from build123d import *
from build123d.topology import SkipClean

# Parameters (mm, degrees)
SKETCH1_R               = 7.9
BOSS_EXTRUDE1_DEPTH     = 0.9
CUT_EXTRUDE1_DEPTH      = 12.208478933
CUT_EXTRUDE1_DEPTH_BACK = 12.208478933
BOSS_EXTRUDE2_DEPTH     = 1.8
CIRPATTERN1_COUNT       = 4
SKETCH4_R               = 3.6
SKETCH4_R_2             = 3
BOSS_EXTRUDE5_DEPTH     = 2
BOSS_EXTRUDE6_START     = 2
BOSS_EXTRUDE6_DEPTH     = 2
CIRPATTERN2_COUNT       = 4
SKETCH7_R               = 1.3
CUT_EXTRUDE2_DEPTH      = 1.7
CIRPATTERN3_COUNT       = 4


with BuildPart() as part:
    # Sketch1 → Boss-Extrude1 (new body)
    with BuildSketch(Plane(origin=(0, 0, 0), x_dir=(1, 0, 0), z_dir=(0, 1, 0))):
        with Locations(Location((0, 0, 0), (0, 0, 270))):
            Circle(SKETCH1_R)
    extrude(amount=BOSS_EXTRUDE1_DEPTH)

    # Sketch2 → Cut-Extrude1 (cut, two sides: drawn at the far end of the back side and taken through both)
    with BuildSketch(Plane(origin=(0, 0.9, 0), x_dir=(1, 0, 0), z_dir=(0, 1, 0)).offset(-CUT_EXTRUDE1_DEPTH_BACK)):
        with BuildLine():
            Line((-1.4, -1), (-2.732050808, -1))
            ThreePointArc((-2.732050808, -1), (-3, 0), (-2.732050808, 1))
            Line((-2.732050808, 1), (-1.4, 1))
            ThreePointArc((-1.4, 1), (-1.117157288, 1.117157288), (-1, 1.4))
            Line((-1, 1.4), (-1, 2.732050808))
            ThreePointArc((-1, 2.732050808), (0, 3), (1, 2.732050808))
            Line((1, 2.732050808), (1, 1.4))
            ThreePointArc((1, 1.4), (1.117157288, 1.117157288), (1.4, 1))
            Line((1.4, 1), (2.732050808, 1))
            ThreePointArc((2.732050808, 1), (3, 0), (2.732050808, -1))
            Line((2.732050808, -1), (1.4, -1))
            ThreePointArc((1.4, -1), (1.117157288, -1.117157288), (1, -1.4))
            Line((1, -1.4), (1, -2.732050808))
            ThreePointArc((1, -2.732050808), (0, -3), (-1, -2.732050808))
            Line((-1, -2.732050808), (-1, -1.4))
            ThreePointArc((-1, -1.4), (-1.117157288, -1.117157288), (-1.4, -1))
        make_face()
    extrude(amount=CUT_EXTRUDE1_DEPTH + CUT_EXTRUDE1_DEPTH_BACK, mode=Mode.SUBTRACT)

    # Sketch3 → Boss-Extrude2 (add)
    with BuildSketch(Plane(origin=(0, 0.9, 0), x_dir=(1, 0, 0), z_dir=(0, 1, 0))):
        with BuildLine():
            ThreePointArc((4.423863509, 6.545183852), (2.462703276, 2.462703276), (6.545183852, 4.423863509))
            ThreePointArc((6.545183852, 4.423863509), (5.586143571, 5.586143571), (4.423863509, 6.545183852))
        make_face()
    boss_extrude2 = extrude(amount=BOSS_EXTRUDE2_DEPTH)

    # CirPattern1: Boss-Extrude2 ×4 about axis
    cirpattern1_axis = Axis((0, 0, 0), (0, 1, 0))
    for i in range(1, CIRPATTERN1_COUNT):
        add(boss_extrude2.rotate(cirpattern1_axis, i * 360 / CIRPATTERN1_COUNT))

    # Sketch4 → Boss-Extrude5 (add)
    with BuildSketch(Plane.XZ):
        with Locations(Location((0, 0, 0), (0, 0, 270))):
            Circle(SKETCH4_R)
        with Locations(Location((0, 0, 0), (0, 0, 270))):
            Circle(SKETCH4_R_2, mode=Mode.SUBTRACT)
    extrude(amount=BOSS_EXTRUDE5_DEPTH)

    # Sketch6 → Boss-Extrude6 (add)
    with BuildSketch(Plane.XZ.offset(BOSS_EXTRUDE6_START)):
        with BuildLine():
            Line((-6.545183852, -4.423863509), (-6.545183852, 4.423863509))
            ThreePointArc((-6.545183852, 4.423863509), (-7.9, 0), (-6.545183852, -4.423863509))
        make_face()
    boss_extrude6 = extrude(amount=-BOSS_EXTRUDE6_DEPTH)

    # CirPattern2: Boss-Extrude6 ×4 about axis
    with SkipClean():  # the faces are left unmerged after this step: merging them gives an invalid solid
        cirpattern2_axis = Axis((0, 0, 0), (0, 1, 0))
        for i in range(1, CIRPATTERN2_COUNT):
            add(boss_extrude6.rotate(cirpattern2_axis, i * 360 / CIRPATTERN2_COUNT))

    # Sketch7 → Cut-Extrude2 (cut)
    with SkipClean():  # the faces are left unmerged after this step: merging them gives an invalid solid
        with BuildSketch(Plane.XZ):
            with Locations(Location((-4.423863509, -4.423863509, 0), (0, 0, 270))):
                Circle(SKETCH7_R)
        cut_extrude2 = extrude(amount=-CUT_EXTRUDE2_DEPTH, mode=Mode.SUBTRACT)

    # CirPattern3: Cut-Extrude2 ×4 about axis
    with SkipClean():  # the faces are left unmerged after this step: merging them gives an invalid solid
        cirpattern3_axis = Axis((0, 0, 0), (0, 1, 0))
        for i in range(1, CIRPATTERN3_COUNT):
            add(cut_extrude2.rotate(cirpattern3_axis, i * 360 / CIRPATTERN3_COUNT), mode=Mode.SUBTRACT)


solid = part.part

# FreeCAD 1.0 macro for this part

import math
import FreeCAD as App
import Part
import Sketcher
from FreeCAD import Vector
Q = App.Units.Quantity

doc = App.newDocument("Part")
body = doc.addObject("PartDesign::Body", "Body")

# Sketch on XZ plane
sketch1 = body.newObject("Sketcher::SketchObject", "Sketch")
sketch1.AttachmentSupport = (doc.getObject("XZ_Plane"), [""])
sketch1.MapMode = "FlatFace"
sketch1.addGeometry(Part.Circle(Vector(0, 0, 0), Vector(0, 0, 1), 7.9), False)
sketch1.addConstraint([
    Sketcher.Constraint("Coincident", 0, 3, -1, 1),
    Sketcher.Constraint("Diameter", 0, Q("15.8 mm")),
])
pad1 = body.newObject("PartDesign::Pad", "Pad")
pad1.Profile = sketch1
pad1.Length = 0.9
pad1.Reversed = True

# Sketch on XZ plane
sketch2 = body.newObject("Sketcher::SketchObject", "Sketch001")
sketch2.AttachmentSupport = (doc.getObject("XZ_Plane"), [""])
sketch2.MapMode = "FlatFace"
sketch2.AttachmentOffset = App.Placement(Vector(0, 0, -0.9), App.Rotation())
sketch2.addGeometry([
    Part.LineSegment(Vector(-2.732051, 1, 0), Vector(-1.4, 1, 0)),  # 0
    Part.ArcOfCircle(Part.Circle(Vector(-1.4, 1.4, 0), Vector(0, 0, 1), 0.4), math.radians(-90), math.radians(0)),  # 1
    Part.LineSegment(Vector(-1, 1.4, 0), Vector(-1, 2.732051, 0)),  # 2
    Part.ArcOfCircle(Part.Circle(Vector(0, 1, 0), Vector(0, 0, 1), 2), math.radians(60), math.radians(120)),  # 3
    Part.LineSegment(Vector(1, 2.732051, 0), Vector(1, 1.4, 0)),  # 4
    Part.ArcOfCircle(Part.Circle(Vector(1.4, 1.4, 0), Vector(0, 0, 1), 0.4), math.radians(-180), math.radians(-90)),  # 5
    Part.LineSegment(Vector(1.4, 1, 0), Vector(2.732051, 1, 0)),  # 6
    Part.ArcOfCircle(Part.Circle(Vector(1, 0, 0), Vector(0, 0, 1), 2), math.radians(-30), math.radians(30)),  # 7
    Part.LineSegment(Vector(2.732051, -1, 0), Vector(1.4, -1, 0)),  # 8
    Part.ArcOfCircle(Part.Circle(Vector(1.4, -1.4, 0), Vector(0, 0, 1), 0.4), math.radians(90), math.radians(180)),  # 9
    Part.LineSegment(Vector(1, -1.4, 0), Vector(1, -2.732051, 0)),  # 10
    Part.ArcOfCircle(Part.Circle(Vector(0, -1, 0), Vector(0, 0, 1), 2), math.radians(-120), math.radians(-60)),  # 11
    Part.LineSegment(Vector(-1, -2.732051, 0), Vector(-1, -1.4, 0)),  # 12
    Part.ArcOfCircle(Part.Circle(Vector(-1.4, -1.4, 0), Vector(0, 0, 1), 0.4), math.radians(0), math.radians(90)),  # 13
    Part.LineSegment(Vector(-1.4, -1, 0), Vector(-2.732051, -1, 0)),  # 14
    Part.ArcOfCircle(Part.Circle(Vector(-1, 0, 0), Vector(0, 0, 1), 2), math.radians(150), math.radians(210)),  # 15
], False)
sketch2.addConstraint([
    Sketcher.Constraint("Tangent", 0, 2, 1, 1),
    Sketcher.Constraint("Tangent", 1, 2, 2, 1),
    Sketcher.Constraint("Coincident", 2, 2, 3, 2),
    Sketcher.Constraint("Coincident", 3, 1, 4, 1),
    Sketcher.Constraint("Tangent", 4, 2, 5, 1),
    Sketcher.Constraint("Tangent", 5, 2, 6, 1),
    Sketcher.Constraint("Coincident", 6, 2, 7, 2),
    Sketcher.Constraint("Coincident", 7, 1, 8, 1),
    Sketcher.Constraint("Tangent", 8, 2, 9, 1),
    Sketcher.Constraint("Tangent", 9, 2, 10, 1),
    Sketcher.Constraint("Coincident", 10, 2, 11, 2),
    Sketcher.Constraint("Coincident", 11, 1, 12, 1),
    Sketcher.Constraint("Tangent", 12, 2, 13, 1),
    Sketcher.Constraint("Tangent", 13, 2, 14, 1),
    Sketcher.Constraint("Coincident", 14, 2, 15, 2),
    Sketcher.Constraint("Coincident", 15, 1, 0, 1),
    Sketcher.Constraint("Horizontal", 0),
    Sketcher.Constraint("Vertical", 2),
    Sketcher.Constraint("Vertical", 4),
    Sketcher.Constraint("Horizontal", 6),
    Sketcher.Constraint("Horizontal", 8),
    Sketcher.Constraint("Vertical", 10),
    Sketcher.Constraint("Vertical", 12),
    Sketcher.Constraint("Horizontal", 14),
    Sketcher.Constraint("Equal", 1, 5),
    Sketcher.Constraint("Equal", 3, 7),
    Sketcher.Constraint("Equal", 5, 9),
    Sketcher.Constraint("Equal", 7, 11),
    Sketcher.Constraint("Equal", 9, 13),
    Sketcher.Constraint("Equal", 11, 15),
    Sketcher.Constraint("Symmetric", 1, 3, 9, 3, -1, 1),
    Sketcher.Constraint("Symmetric", 3, 3, 11, 3, -1, 1),
    Sketcher.Constraint("Symmetric", 5, 3, 13, 3, -1, 1),
    Sketcher.Constraint("Symmetric", 7, 3, 15, 3, -1, 1),
    Sketcher.Constraint("Symmetric", 1, 3, 5, 3, -2),
    Sketcher.Constraint("PointOnObject", 3, 3, -2),
    Sketcher.Constraint("PointOnObject", 7, 3, -1),
    Sketcher.Constraint("Horizontal", 3, 3, 0, 2),
    Sketcher.Constraint("Vertical", 15, 3, 1, 2),
    Sketcher.Constraint("Equal", 14, 2),
    Sketcher.Constraint("Radius", 3, Q("2 mm")),
    Sketcher.Constraint("Radius", 1, Q("0.4 mm")),
    Sketcher.Constraint("DistanceY", -1, 1, 3, 3, Q("1 mm")),
])
pocket1 = body.newObject("PartDesign::Pocket", "Pocket")
pocket1.Profile = sketch2
pocket1.Type = "ThroughAll"
pocket1.Midplane = True

# Sketch on XZ plane
sketch3 = body.newObject("Sketcher::SketchObject", "Sketch002")
sketch3.AttachmentSupport = (doc.getObject("XZ_Plane"), [""])
sketch3.MapMode = "FlatFace"
sketch3.AttachmentOffset = App.Placement(Vector(0, 0, -0.9), App.Rotation())
sketch3.addGeometry([
    Part.ArcOfCircle(Part.Circle(Vector(4.15976, -4.15976, 0), Vector(0, 0, 1), 2.4), math.radians(-6.317813), math.radians(276.317813)),
    Part.ArcOfCircle(Part.Circle(Vector(0, 0, 0), Vector(0, 0, 1), 7.9), math.radians(-55.945397), math.radians(-34.054603)),
], False)
sketch3.addConstraint([
    Sketcher.Constraint("Coincident", 0, 1, 1, 2),
    Sketcher.Constraint("Coincident", 1, 1, 0, 2),
    Sketcher.Constraint("Coincident", 1, 3, -1, 1),
    Sketcher.Constraint("Radius", 0, Q("2.4 mm")),
    Sketcher.Constraint("Radius", 1, Q("7.9 mm")),
    Sketcher.Constraint("DistanceX", -1, 1, 0, 3, Q("4.15976 mm")),
    Sketcher.Constraint("DistanceY", 0, 3, -1, 1, Q("4.15976 mm")),
])
pad2 = body.newObject("PartDesign::Pad", "Pad001")
pad2.Profile = sketch3
pad2.Length = 1.8
pad2.Reversed = True
doc.recompute()

polarpattern = body.newObject("PartDesign::PolarPattern", "PolarPattern")
polarpattern.Originals = [pad2]
polarpattern.Axis = (doc.getObject("Y_Axis"), [""])
polarpattern.Angle = 360
polarpattern.Occurrences = 4
body.Tip = polarpattern

# Sketch on XZ plane
sketch4 = body.newObject("Sketcher::SketchObject", "Sketch003")
sketch4.AttachmentSupport = (doc.getObject("XZ_Plane"), [""])
sketch4.MapMode = "FlatFace"
sketch4.addGeometry([
    Part.Circle(Vector(0, 0, 0), Vector(0, 0, 1), 3.6),
    Part.Circle(Vector(0, 0, 0), Vector(0, 0, 1), 3),
], False)
sketch4.addConstraint([
    Sketcher.Constraint("Coincident", 0, 3, -1, 1),
    Sketcher.Constraint("Coincident", 1, 3, -1, 1),
    Sketcher.Constraint("Diameter", 1, Q("6 mm")),
    Sketcher.Constraint("Diameter", 0, Q("7.2 mm")),
])
pad3 = body.newObject("PartDesign::Pad", "Pad002")
pad3.Profile = sketch4
pad3.Length = 2

# Sketch on XZ plane
sketch5 = body.newObject("Sketcher::SketchObject", "Sketch004")
sketch5.AttachmentSupport = (doc.getObject("XZ_Plane"), [""])
sketch5.MapMode = "FlatFace"
sketch5.AttachmentOffset = App.Placement(Vector(0, 0, 2), App.Rotation())
sketch5.addGeometry([
    Part.LineSegment(Vector(-6.545184, -4.423864, 0), Vector(-6.545184, 4.423864, 0)),
    Part.ArcOfCircle(Part.Circle(Vector(0, 0, 0), Vector(0, 0, 1), 7.9), math.radians(145.945397), math.radians(214.054603)),
], False)
sketch5.addConstraint([
    Sketcher.Constraint("Coincident", 0, 1, 1, 2),
    Sketcher.Constraint("Coincident", 1, 1, 0, 2),
    Sketcher.Constraint("Vertical", 0),
    Sketcher.Constraint("Coincident", 1, 3, -1, 1),
    Sketcher.Constraint("Radius", 1, Q("7.9 mm")),
    Sketcher.Constraint("DistanceY", 0, 1, 0, 2, Q("8.847727 mm")),
])
pad4 = body.newObject("PartDesign::Pad", "Pad003")
pad4.Profile = sketch5
pad4.Length = 2
pad4.Reversed = True
doc.recompute()

polarpattern2 = body.newObject("PartDesign::PolarPattern", "PolarPattern001")
polarpattern2.Originals = [pad4]
polarpattern2.Axis = (doc.getObject("Y_Axis"), [""])
polarpattern2.Angle = 360
polarpattern2.Occurrences = 4
body.Tip = polarpattern2

# Sketch on XZ plane
sketch6 = body.newObject("Sketcher::SketchObject", "Sketch005")
sketch6.AttachmentSupport = (doc.getObject("XZ_Plane"), [""])
sketch6.MapMode = "FlatFace"
sketch6.addGeometry(Part.Circle(Vector(-4.423864, -4.423864, 0), Vector(0, 0, 1), 1.3), False)
sketch6.addConstraint([
    Sketcher.Constraint("Diameter", 0, Q("2.6 mm")),
    Sketcher.Constraint("DistanceX", 0, 3, -1, 1, Q("4.423864 mm")),
    Sketcher.Constraint("DistanceY", 0, 3, -1, 1, Q("4.423864 mm")),
])
pocket2 = body.newObject("PartDesign::Pocket", "Pocket001")
pocket2.Profile = sketch6
pocket2.Length = 1.7
doc.recompute()

polarpattern3 = body.newObject("PartDesign::PolarPattern", "PolarPattern002")
polarpattern3.Originals = [pocket2]
polarpattern3.Axis = (doc.getObject("Y_Axis"), [""])
polarpattern3.Angle = 360
polarpattern3.Occurrences = 4
body.Tip = polarpattern3

doc.recompute()
